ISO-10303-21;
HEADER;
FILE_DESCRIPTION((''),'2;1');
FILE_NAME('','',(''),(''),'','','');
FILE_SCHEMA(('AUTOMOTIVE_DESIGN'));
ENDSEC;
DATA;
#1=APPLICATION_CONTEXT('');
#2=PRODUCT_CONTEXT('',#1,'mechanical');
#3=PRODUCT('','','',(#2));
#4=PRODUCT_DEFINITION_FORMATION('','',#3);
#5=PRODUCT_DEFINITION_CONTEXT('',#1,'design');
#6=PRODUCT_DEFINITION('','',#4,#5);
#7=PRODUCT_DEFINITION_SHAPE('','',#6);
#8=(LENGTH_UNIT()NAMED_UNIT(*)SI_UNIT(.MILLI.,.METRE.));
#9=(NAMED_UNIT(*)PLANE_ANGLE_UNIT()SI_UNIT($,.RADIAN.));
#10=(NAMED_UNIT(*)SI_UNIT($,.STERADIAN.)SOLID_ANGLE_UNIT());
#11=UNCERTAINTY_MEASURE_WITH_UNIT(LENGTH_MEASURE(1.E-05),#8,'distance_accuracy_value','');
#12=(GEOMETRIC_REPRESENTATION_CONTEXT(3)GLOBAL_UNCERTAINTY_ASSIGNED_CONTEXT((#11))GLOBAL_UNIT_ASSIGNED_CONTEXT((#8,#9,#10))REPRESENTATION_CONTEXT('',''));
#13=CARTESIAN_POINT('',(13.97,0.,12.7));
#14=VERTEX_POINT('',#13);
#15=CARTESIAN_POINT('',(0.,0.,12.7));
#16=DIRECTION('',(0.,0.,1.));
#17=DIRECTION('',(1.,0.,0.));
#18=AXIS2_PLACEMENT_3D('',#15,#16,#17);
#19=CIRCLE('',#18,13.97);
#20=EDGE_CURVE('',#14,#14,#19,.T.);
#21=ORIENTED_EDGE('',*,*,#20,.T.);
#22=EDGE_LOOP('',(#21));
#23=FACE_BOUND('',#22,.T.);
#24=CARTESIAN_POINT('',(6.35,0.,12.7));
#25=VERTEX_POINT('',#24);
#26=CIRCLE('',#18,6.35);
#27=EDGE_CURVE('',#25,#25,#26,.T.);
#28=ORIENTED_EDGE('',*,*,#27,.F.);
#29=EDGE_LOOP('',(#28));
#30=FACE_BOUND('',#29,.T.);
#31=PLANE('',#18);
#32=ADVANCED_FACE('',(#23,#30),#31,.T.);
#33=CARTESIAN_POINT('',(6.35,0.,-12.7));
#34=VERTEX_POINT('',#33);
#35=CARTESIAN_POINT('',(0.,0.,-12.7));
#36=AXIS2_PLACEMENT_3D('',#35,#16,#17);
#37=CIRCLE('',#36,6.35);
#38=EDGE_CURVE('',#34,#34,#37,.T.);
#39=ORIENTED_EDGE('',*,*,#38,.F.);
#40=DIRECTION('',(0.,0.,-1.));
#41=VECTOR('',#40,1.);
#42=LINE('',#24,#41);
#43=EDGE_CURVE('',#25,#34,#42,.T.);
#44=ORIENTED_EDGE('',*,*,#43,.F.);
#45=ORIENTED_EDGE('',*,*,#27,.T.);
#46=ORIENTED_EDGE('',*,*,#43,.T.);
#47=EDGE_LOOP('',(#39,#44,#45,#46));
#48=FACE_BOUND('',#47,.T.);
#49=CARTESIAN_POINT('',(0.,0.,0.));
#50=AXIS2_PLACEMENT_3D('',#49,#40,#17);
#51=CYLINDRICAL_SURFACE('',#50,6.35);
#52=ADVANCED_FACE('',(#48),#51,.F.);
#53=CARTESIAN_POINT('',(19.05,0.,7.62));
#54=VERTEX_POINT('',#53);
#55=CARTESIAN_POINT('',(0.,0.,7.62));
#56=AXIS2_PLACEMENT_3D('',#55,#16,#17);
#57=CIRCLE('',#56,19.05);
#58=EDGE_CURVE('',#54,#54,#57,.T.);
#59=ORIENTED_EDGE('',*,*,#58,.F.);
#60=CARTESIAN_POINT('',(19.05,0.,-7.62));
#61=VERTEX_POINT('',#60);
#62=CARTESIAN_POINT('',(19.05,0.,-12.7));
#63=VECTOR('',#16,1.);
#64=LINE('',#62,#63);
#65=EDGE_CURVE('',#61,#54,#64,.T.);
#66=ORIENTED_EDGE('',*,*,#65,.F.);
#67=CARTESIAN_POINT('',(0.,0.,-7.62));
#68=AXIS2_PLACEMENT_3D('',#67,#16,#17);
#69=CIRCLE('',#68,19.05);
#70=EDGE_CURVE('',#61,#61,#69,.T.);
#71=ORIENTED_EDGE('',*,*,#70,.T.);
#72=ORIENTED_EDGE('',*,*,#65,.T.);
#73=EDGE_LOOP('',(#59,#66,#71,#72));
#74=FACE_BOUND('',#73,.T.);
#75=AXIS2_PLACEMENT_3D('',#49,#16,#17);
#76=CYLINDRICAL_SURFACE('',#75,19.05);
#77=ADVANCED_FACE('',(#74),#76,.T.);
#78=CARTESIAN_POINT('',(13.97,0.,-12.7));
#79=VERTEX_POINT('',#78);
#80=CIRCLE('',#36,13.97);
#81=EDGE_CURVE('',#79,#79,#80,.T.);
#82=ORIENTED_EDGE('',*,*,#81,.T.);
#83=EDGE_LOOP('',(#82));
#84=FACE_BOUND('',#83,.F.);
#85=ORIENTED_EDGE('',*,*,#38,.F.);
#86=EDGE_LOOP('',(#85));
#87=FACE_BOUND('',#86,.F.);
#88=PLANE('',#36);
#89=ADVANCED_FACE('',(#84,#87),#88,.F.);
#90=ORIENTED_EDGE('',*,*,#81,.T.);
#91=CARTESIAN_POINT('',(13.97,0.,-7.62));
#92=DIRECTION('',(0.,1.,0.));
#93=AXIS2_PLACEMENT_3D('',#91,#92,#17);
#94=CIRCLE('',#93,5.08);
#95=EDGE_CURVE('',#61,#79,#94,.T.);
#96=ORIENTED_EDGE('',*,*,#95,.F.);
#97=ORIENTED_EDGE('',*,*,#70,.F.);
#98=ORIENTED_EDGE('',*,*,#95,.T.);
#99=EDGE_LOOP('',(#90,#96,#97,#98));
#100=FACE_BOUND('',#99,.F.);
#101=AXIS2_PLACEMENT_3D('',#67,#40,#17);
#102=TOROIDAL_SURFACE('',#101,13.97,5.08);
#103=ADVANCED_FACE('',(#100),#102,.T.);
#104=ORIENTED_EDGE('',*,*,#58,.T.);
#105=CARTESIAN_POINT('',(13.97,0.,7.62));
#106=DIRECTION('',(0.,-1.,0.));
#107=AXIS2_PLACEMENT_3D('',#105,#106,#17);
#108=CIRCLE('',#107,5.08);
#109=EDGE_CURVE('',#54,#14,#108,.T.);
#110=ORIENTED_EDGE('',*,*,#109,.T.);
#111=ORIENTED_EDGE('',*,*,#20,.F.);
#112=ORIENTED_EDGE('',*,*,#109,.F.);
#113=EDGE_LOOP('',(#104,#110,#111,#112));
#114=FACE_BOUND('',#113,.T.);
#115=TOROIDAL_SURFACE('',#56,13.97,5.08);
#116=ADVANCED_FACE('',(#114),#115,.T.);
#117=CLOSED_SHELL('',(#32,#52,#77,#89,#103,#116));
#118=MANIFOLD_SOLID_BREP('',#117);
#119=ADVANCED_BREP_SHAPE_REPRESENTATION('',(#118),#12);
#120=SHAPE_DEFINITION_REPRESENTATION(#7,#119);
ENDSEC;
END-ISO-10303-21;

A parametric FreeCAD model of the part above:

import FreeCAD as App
import Part
import Sketcher

V = App.Vector
Q = App.Units.Quantity


def edges_at(feature, points):
    """Names of the edges that pass closest to the given points."""
    edges = feature.Shape.Edges
    near = lambda p: min(range(len(edges)), key=lambda i: edges[i].distToShape(Part.Vertex(*p))[0])
    return sorted({f"Edge{near(p) + 1}" for p in points})

doc = App.newDocument("Part")
body = doc.addObject("PartDesign::Body", "Body")

# Sketch on XY plane
sketch1 = body.newObject("Sketcher::SketchObject", "Sketch")
sketch1.AttachmentSupport = (doc.getObject("XY_Plane"), [""])
sketch1.MapMode = "FlatFace"
sketch1.addGeometry([
    Part.Circle(V(0, 0, 0), V(0, 0, 1), 19.05),
    Part.Circle(V(0, 0, 0), V(0, 0, 1), 6.35),
], False)
sketch1.addConstraint([
    Sketcher.Constraint("Coincident", 0, 3, -1, 1),
    Sketcher.Constraint("Coincident", 1, 3, -1, 1),
    Sketcher.Constraint("Diameter", 0, Q("1.5 in")),
    Sketcher.Constraint("Diameter", 1, Q("0.5 in")),
])
pad1 = body.newObject("PartDesign::Pad", "Pad")
pad1.Profile = sketch1
pad1.Length = Q("1 in")
pad1.Midplane = True
doc.recompute()

fillet = body.newObject("PartDesign::Fillet", "Fillet")
fillet.Base = (pad1, edges_at(pad1, [(-19.05, 0, -12.7), (-19.05, 0, 12.7)]))
fillet.Radius = Q("0.2 in")

# Sketch on XY plane
sketch2 = body.newObject("Sketcher::SketchObject", "Sketch001")
sketch2.AttachmentSupport = (doc.getObject("XY_Plane"), [""])
sketch2.MapMode = "FlatFace"
sketch2.addGeometry([
    Part.Circle(V(0, 0, 0), V(0, 0, 1), 19.05),
    Part.Circle(V(0, 0, 0), V(0, 0, 1), 6.35),
], False)
sketch2.addConstraint([
    Sketcher.Constraint("Coincident", 0, 3, -1, 1),
    Sketcher.Constraint("Coincident", 1, 3, -1, 1),
    Sketcher.Constraint("Diameter", 0, Q("1.5 in")),
    Sketcher.Constraint("Diameter", 1, Q("0.5 in")),
])
pad2 = body.newObject("PartDesign::Pad", "Pad001")
pad2.Profile = sketch2
pad2.Length = Q("1 in")
pad2.Midplane = True
doc.recompute()

fillet2 = body.newObject("PartDesign::Fillet", "Fillet001")
fillet2.Base = (pad2, edges_at(pad2, [(-19.05, 0, -12.7), (-19.05, 0, 12.7)]))
fillet2.Radius = Q("0.2 in")

doc.recompute()
